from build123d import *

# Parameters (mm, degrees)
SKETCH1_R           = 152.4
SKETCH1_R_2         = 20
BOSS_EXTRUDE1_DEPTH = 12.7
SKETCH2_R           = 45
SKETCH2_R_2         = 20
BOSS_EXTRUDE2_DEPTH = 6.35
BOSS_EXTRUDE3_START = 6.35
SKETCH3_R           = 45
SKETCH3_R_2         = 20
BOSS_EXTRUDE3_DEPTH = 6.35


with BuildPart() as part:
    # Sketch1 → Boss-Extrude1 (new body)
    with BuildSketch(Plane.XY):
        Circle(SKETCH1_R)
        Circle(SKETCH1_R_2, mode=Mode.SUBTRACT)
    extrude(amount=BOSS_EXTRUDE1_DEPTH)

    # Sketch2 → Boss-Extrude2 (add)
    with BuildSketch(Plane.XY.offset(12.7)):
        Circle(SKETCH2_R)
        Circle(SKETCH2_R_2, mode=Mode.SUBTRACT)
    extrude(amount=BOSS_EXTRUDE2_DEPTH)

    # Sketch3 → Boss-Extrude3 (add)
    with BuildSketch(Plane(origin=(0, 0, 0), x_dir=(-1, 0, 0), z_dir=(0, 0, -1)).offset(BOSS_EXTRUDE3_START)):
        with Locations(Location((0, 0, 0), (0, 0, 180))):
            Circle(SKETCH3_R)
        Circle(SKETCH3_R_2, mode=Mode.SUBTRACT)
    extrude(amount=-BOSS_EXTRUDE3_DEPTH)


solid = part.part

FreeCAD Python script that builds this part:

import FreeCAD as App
import Part
import Sketcher
Q = App.Units.Quantity

doc = App.newDocument("Part")
body = doc.addObject("PartDesign::Body", "Body")

# Sketch on XY plane
sketch1 = body.newObject("Sketcher::SketchObject", "Sketch")
sketch1.AttachmentSupport = (doc.getObject("XY_Plane"), [""])
sketch1.MapMode = "FlatFace"
sketch1.addGeometry([
    Part.Circle(App.Vector(0, 0, 0), App.Vector(0, 0, 1), 152),
    Part.Circle(App.Vector(0, 0, 0), App.Vector(0, 0, 1), 20),
], False)
sketch1.addConstraint([
    Sketcher.Constraint("Coincident", 0, 3, -1, 1),
    Sketcher.Constraint("Coincident", 1, 3, -1, 1),
    Sketcher.Constraint("Diameter", 0, Q("12 in")),
    Sketcher.Constraint("Diameter", 1, 40.0),
])
pad1 = body.newObject("PartDesign::Pad", "Pad")
pad1.Profile = sketch1
pad1.Length = Q("0.5 in")

# Sketch on XY plane
sketch2 = body.newObject("Sketcher::SketchObject", "Sketch001")
sketch2.AttachmentSupport = (doc.getObject("XY_Plane"), [""])
sketch2.MapMode = "FlatFace"
sketch2.AttachmentOffset = App.Placement(App.Vector(0, 0, 0.5 * 25.4), App.Rotation())
sketch2.addGeometry([
    Part.Circle(App.Vector(0, 0, 0), App.Vector(0, 0, 1), 45),
    Part.Circle(App.Vector(0, 0, 0), App.Vector(0, 0, 1), 20),
], False)
sketch2.addConstraint([
    Sketcher.Constraint("Coincident", 0, 3, -1, 1),
    Sketcher.Constraint("Coincident", 1, 3, -1, 1),
    Sketcher.Constraint("Diameter", 0, 90.0),
    Sketcher.Constraint("Diameter", 1, 40.0),
])
pad2 = body.newObject("PartDesign::Pad", "Pad001")
pad2.Profile = sketch2
pad2.Length = Q("0.25 in")

# Sketch on XY plane
sketch3 = body.newObject("Sketcher::SketchObject", "Sketch002")
sketch3.AttachmentSupport = (doc.getObject("XY_Plane"), [""])
sketch3.MapMode = "FlatFace"
sketch3.AttachmentOffset = App.Placement(App.Vector(0, 0, -0.25 * 25.4), App.Rotation())
sketch3.addGeometry([
    Part.Circle(App.Vector(0, 0, 0), App.Vector(0, 0, 1), 45),
    Part.Circle(App.Vector(0, 0, 0), App.Vector(0, 0, 1), 20),
], False)
sketch3.addConstraint([
    Sketcher.Constraint("Coincident", 0, 3, -1, 1),
    Sketcher.Constraint("Coincident", 1, 3, -1, 1),
    Sketcher.Constraint("Diameter", 0, 90.0),
    Sketcher.Constraint("Diameter", 1, 40.0),
])
pad3 = body.newObject("PartDesign::Pad", "Pad002")
pad3.Profile = sketch3
pad3.Length = Q("0.25 in")

doc.recompute()
